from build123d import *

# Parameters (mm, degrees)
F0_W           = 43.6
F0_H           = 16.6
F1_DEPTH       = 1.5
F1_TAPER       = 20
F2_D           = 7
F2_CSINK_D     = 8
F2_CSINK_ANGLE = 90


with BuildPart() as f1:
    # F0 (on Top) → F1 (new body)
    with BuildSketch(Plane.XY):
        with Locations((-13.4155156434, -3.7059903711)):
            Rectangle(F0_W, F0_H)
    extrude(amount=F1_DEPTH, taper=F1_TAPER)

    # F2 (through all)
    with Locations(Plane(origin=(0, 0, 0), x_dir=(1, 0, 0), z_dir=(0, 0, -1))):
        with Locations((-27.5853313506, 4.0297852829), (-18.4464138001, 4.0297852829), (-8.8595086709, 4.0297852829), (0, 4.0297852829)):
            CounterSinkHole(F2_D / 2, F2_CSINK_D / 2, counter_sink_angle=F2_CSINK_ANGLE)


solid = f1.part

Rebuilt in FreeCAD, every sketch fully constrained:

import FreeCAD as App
import Part
import Sketcher
Q = App.Units.Quantity


def add_polygon(sketch, points):
    """Adds a closed chain of lines whose ends are joined by coincident constraints."""
    first, n = sketch.GeometryCount, len(points)
    for a, b in zip(points, points[1:] + points[:1]):
        sketch.addGeometry(Part.LineSegment(App.Vector(*a, 0), App.Vector(*b, 0)), False)
    for i in range(n):
        sketch.addConstraint(Sketcher.Constraint("Coincident", first + i, 2, first + (i + 1) % n, 1))

doc = App.newDocument("Part")
body = doc.addObject("PartDesign::Body", "Body")

# Sketch on XY plane
sketch1 = body.newObject("Sketcher::SketchObject", "Sketch")
sketch1.AttachmentSupport = (doc.getObject("XY_Plane"), [""])
sketch1.MapMode = "FlatFace"
add_polygon(sketch1, [(-35.215516, 4.59401), (-35.215516, -12.00599), (8.384484, -12.00599), (8.384484, 4.59401)])  # lines 0-3
sketch1.addConstraint(Sketcher.Constraint("Vertical", 0))
sketch1.addConstraint(Sketcher.Constraint("Horizontal", 1))
sketch1.addConstraint(Sketcher.Constraint("Vertical", 2))
sketch1.addConstraint(Sketcher.Constraint("Horizontal", 3))
sketch1.addConstraint(Sketcher.Constraint("DistanceX", 1, 1, 1, 2, Q("43.6 mm")))
sketch1.addConstraint(Sketcher.Constraint("DistanceY", 0, 2, 0, 1, Q("16.6 mm")))
sketch1.addConstraint(Sketcher.Constraint("DistanceY", 0, 2, -1, 1, Q("12.00599 mm")))
sketch1.addConstraint(Sketcher.Constraint("DistanceX", 0, 2, -1, 1, Q("35.215516 mm")))
pad1 = body.newObject("PartDesign::Pad", "Pad")
pad1.Profile = sketch1
pad1.Length = 1.5
pad1.TaperAngle = -20

# Sketch on XY plane
sketch2 = body.newObject("Sketcher::SketchObject", "Sketch001")
sketch2.AttachmentSupport = (doc.getObject("XY_Plane"), [""])
sketch2.MapMode = "FlatFace"
sketch2.addGeometry(Part.Circle(App.Vector(-27.585331, -4.029785, 0), App.Vector(0, 0, 1), 3.5), False)
sketch2.addGeometry(Part.Circle(App.Vector(-18.446414, -4.029785, 0), App.Vector(0, 0, 1), 3.5), False)
sketch2.addGeometry(Part.Circle(App.Vector(-8.859509, -4.029785, 0), App.Vector(0, 0, 1), 3.5), False)
sketch2.addGeometry(Part.Circle(App.Vector(0, -4.029785, 0), App.Vector(0, 0, 1), 3.5), False)
sketch2.addConstraint(Sketcher.Constraint("Equal", 0, 1))
sketch2.addConstraint(Sketcher.Constraint("Equal", 1, 2))
sketch2.addConstraint(Sketcher.Constraint("Equal", 2, 3))
sketch2.addConstraint(Sketcher.Constraint("PointOnObject", 3, 3, -2))
sketch2.addConstraint(Sketcher.Constraint("Horizontal", 0, 3, 1, 3))
sketch2.addConstraint(Sketcher.Constraint("Horizontal", 1, 3, 2, 3))
sketch2.addConstraint(Sketcher.Constraint("Horizontal", 2, 3, 3, 3))
sketch2.addConstraint(Sketcher.Constraint("Diameter", 0, Q("7 mm")))
sketch2.addConstraint(Sketcher.Constraint("DistanceX", 0, 3, -1, 1, Q("27.585331 mm")))
sketch2.addConstraint(Sketcher.Constraint("DistanceX", 2, 3, -1, 1, Q("8.859509 mm")))
sketch2.addConstraint(Sketcher.Constraint("DistanceY", 0, 3, -1, 1, Q("4.029785 mm")))
sketch2.addConstraint(Sketcher.Constraint("DistanceX", 1, 3, -1, 1, Q("18.446414 mm")))
doc.recompute()
hole = body.newObject("PartDesign::Hole", "Hole")
hole.Profile = sketch2
hole.ThreadType = "None"
hole.Diameter = 7
hole.DepthType = "ThroughAll"
hole.HoleCutType = "Countersink"
hole.HoleCutDiameter = 8
hole.HoleCutCountersinkAngle = 90
hole.Reversed = True

doc.recompute()
